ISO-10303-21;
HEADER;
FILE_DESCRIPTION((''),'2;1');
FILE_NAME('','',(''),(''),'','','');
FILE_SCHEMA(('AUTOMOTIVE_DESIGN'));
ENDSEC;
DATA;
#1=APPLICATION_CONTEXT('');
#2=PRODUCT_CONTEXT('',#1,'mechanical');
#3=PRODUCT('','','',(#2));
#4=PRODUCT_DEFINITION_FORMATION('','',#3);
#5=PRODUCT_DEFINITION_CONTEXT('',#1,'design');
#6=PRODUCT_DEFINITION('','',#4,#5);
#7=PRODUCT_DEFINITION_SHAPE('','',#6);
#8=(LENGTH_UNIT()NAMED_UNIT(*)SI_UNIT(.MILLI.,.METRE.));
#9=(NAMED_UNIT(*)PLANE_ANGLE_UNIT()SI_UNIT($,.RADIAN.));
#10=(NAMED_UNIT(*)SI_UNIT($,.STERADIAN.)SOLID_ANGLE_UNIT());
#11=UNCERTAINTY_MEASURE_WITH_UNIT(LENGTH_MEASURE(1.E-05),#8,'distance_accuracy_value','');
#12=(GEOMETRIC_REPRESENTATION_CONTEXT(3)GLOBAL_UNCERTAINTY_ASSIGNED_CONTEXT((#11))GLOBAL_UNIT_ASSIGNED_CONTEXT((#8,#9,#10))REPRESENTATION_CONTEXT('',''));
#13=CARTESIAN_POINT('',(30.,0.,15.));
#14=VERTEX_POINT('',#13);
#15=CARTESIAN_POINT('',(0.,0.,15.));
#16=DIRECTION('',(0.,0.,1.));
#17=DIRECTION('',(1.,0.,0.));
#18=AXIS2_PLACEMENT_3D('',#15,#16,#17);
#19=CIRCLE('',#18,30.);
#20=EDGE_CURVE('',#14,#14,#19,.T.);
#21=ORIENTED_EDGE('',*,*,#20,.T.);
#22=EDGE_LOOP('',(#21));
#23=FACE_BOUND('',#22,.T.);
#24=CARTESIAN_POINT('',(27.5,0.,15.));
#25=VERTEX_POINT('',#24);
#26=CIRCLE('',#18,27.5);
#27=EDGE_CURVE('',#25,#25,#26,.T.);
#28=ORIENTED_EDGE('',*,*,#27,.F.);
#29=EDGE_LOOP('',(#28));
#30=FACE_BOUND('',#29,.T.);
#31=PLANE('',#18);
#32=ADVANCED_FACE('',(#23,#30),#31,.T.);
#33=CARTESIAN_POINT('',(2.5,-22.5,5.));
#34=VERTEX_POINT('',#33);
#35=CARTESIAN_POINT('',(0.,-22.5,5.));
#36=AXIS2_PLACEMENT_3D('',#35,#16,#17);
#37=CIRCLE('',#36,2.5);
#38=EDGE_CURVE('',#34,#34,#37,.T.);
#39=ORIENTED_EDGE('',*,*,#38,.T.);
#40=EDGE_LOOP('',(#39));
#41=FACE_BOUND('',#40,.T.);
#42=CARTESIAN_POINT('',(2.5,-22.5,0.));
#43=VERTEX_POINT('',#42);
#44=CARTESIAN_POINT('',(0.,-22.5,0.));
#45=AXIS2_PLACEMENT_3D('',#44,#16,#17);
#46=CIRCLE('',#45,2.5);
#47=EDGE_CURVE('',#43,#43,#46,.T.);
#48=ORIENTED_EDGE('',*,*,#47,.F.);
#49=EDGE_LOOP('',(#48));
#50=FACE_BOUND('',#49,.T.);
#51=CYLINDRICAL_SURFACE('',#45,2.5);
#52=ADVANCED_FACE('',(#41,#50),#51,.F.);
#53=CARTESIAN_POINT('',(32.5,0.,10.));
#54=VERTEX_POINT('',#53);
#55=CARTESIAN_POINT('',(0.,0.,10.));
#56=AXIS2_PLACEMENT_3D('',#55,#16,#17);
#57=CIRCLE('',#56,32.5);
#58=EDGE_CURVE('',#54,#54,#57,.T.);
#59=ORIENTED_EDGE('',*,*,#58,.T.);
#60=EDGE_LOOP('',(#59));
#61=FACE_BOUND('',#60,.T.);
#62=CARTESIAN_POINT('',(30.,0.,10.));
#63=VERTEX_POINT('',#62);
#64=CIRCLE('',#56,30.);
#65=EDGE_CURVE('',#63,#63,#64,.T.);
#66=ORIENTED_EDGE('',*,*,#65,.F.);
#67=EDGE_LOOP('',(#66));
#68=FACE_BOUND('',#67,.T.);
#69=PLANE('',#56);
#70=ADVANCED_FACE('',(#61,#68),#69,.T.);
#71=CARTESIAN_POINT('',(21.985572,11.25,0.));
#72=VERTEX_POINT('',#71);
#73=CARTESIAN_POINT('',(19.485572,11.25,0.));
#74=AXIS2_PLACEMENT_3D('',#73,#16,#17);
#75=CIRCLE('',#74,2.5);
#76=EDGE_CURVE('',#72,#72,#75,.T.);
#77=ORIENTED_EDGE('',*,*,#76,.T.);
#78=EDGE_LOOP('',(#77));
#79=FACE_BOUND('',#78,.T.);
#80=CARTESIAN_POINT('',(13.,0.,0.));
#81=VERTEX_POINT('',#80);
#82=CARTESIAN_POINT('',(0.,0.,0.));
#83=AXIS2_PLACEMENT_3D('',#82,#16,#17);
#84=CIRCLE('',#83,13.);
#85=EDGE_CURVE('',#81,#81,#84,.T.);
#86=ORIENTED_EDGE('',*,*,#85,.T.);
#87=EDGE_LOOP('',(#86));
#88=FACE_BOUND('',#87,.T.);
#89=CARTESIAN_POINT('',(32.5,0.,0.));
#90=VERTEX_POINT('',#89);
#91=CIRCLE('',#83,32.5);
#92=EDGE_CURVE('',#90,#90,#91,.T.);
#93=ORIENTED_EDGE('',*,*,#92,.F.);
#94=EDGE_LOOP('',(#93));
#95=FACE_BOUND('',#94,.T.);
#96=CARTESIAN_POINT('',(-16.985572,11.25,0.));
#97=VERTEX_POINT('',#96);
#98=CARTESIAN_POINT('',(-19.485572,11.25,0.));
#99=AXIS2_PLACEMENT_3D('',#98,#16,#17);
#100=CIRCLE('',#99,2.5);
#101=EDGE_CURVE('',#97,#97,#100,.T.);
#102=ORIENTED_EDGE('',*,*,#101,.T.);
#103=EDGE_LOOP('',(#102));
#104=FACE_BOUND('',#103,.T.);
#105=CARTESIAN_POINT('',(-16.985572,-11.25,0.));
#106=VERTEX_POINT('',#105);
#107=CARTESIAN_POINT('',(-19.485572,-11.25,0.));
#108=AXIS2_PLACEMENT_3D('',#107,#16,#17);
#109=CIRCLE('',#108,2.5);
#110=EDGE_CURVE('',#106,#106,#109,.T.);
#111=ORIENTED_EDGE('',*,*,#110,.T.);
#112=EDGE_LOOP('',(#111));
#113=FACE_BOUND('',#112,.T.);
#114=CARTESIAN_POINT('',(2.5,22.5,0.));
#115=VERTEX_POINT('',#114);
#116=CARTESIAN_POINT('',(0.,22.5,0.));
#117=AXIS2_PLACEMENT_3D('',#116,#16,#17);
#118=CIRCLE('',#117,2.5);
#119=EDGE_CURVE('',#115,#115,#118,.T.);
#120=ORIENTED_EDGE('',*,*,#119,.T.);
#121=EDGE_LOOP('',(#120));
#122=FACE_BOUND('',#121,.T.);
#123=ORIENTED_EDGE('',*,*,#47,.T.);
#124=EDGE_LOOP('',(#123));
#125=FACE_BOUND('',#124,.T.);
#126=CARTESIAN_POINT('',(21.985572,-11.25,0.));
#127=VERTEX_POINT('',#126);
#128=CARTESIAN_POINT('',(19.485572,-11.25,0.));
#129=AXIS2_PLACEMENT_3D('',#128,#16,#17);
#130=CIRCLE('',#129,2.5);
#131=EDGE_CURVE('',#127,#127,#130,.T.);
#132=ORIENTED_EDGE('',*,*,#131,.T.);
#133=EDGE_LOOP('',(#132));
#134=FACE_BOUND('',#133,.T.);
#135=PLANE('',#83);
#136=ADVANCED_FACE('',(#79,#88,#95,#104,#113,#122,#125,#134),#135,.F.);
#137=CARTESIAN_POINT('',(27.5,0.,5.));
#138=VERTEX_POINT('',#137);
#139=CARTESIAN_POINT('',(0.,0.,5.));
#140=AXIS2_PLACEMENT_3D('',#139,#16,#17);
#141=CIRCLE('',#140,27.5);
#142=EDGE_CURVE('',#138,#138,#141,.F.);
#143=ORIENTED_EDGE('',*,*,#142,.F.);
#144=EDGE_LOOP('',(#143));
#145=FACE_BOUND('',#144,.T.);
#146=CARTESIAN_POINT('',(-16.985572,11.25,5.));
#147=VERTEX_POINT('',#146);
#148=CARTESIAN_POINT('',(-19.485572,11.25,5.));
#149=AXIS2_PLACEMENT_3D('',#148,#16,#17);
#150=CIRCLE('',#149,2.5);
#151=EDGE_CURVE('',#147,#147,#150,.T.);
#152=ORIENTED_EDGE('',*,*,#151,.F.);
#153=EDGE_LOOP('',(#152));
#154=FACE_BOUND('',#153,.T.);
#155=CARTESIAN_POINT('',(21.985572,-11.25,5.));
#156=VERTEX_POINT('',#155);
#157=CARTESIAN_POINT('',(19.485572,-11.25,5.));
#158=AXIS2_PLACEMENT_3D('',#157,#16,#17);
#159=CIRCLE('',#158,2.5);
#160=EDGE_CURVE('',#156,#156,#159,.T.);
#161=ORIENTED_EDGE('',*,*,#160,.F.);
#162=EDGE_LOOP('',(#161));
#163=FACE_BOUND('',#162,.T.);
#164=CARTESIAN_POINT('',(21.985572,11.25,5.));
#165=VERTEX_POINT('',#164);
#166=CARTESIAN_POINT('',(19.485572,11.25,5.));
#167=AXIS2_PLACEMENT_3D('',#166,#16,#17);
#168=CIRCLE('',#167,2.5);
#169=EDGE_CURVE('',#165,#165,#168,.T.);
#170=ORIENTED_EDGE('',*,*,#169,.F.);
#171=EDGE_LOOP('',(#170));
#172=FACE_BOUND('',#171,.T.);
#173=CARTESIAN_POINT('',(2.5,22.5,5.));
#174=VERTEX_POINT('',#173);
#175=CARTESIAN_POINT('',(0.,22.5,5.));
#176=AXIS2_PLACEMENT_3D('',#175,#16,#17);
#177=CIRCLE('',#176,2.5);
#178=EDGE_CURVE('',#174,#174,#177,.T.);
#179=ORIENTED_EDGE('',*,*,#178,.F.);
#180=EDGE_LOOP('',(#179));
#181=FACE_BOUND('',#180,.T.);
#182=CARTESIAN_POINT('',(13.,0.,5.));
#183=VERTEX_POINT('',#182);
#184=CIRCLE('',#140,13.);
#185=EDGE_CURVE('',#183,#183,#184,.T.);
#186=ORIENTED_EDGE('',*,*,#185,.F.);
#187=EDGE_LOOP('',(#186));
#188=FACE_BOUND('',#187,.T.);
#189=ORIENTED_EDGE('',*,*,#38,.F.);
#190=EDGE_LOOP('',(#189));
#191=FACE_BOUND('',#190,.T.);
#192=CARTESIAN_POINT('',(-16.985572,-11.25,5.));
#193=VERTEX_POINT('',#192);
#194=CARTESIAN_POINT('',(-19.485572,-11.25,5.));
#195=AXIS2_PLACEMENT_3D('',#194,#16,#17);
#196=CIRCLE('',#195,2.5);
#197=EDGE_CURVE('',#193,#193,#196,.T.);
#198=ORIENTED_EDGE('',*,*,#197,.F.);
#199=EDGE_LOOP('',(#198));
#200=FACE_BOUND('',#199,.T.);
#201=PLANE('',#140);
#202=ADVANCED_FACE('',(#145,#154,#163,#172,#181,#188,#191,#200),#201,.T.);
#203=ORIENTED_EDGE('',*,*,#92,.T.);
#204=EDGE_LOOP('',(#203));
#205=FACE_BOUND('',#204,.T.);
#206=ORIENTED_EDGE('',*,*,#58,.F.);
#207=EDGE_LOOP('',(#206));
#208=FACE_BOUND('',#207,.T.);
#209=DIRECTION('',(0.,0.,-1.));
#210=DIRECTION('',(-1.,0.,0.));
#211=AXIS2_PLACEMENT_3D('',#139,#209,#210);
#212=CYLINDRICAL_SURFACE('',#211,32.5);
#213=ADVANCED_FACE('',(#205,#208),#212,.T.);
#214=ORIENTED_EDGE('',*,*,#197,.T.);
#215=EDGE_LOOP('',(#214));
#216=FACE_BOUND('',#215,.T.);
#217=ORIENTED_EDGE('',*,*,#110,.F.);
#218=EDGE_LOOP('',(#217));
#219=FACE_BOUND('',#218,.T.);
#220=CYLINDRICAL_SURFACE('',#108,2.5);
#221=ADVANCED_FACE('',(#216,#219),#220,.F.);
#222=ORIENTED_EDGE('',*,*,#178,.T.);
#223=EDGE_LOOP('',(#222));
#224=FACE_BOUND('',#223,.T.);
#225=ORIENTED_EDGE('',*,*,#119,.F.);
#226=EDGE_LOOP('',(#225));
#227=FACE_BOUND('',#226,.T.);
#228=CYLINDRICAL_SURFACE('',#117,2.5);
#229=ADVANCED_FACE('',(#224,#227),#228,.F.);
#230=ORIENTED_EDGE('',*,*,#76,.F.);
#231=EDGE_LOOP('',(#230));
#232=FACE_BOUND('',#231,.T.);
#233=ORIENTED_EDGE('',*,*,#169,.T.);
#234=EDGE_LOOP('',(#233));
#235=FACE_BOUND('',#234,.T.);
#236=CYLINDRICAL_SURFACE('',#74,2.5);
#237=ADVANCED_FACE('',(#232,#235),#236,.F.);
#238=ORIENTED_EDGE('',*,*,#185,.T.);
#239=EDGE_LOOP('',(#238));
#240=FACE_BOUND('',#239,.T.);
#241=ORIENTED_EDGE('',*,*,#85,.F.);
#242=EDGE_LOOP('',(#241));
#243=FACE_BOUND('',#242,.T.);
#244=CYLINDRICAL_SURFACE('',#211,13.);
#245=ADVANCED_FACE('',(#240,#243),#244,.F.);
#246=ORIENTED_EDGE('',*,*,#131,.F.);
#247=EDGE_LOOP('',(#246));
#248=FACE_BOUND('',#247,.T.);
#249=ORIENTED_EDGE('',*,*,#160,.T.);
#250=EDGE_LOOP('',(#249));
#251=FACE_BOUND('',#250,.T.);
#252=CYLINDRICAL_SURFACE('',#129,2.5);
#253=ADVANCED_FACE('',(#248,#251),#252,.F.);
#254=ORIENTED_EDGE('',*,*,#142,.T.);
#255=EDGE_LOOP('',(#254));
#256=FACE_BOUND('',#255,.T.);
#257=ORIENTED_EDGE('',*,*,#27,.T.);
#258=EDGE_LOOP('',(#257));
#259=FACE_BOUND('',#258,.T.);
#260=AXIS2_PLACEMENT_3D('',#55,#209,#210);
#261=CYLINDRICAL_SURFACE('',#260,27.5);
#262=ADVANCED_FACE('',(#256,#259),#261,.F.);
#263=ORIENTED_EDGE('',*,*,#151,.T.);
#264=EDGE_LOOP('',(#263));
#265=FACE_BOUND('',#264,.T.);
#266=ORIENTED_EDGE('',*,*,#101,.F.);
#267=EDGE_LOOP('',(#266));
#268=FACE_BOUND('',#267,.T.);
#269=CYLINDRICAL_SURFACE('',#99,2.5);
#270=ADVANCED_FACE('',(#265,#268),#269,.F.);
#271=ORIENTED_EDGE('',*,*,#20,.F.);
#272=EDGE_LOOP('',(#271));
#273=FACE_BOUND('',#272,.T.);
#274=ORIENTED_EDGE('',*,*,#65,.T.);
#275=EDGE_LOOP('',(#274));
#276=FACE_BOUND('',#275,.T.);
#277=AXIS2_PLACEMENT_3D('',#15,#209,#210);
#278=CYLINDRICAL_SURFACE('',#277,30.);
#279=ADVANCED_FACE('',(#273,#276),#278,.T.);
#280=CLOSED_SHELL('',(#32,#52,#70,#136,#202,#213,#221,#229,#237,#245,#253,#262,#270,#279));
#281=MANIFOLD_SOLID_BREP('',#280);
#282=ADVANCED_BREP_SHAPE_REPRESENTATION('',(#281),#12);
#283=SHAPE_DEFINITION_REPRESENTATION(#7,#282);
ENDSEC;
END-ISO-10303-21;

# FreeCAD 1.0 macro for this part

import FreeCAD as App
import Part
import Sketcher

V = App.Vector

doc = App.newDocument("Part")
body = doc.addObject("PartDesign::Body", "Body")

# Sketch on XY plane
sketch1 = body.newObject("Sketcher::SketchObject", "Sketch")
sketch1.AttachmentSupport = (doc.getObject("XY_Plane"), [""])
sketch1.MapMode = "FlatFace"
sketch1.addGeometry(Part.Circle(V(0, 0, 0), V(0, 0, 1), 32), False)
sketch1.addGeometry(Part.Circle(V(0, 0, 0), V(0, 0, 1), 13), False)
sketch1.addConstraint(Sketcher.Constraint("Coincident", 0, 3, -1, 1))
sketch1.addConstraint(Sketcher.Constraint("Coincident", 1, 3, -1, 1))
sketch1.addConstraint(Sketcher.Constraint("Diameter", 0, 65.0))
sketch1.addConstraint(Sketcher.Constraint("Diameter", 1, 26.0))
pad1 = body.newObject("PartDesign::Pad", "Pad")
pad1.Profile = sketch1
pad1.Length = 5

# Sketch on XY plane
sketch2 = body.newObject("Sketcher::SketchObject", "Sketch001")
sketch2.AttachmentSupport = (doc.getObject("XY_Plane"), [""])
sketch2.MapMode = "FlatFace"
sketch2.AttachmentOffset = App.Placement(V(0, 0, 5), App.Rotation())
sketch2.addGeometry(Part.Circle(V(0, 0, 0), V(0, 0, 1), 32), False)
sketch2.addGeometry(Part.Circle(V(0, 0, 0), V(0, 0, 1), 28), False)
sketch2.addConstraint(Sketcher.Constraint("Coincident", 0, 3, -1, 1))
sketch2.addConstraint(Sketcher.Constraint("Coincident", 1, 3, -1, 1))
sketch2.addConstraint(Sketcher.Constraint("Diameter", 0, 65.0))
sketch2.addConstraint(Sketcher.Constraint("Diameter", 1, 55.0))
pad2 = body.newObject("PartDesign::Pad", "Pad001")
pad2.Profile = sketch2
pad2.Length = 5

# Sketch on XY plane
sketch3 = body.newObject("Sketcher::SketchObject", "Sketch002")
sketch3.AttachmentSupport = (doc.getObject("XY_Plane"), [""])
sketch3.MapMode = "FlatFace"
sketch3.AttachmentOffset = App.Placement(V(0, 0, 5), App.Rotation())
sketch3.addGeometry(Part.Circle(V(0, 22.5, 0), V(0, 0, 1), 2.5), False)
sketch3.addGeometry(Part.Circle(V(19.5, 11.2, 0), V(0, 0, 1), 2.5), False)
sketch3.addGeometry(Part.Circle(V(19.5, -11.2, 0), V(0, 0, 1), 2.5), False)
sketch3.addGeometry(Part.Circle(V(0, -22.5, 0), V(0, 0, 1), 2.5), False)
sketch3.addGeometry(Part.Circle(V(-19.5, -11.2, 0), V(0, 0, 1), 2.5), False)
sketch3.addGeometry(Part.Circle(V(-19.5, 11.2, 0), V(0, 0, 1), 2.5), False)
sketch3.addConstraint(Sketcher.Constraint("Equal", 0, 1))
sketch3.addConstraint(Sketcher.Constraint("Equal", 1, 2))
sketch3.addConstraint(Sketcher.Constraint("Equal", 2, 3))
sketch3.addConstraint(Sketcher.Constraint("Equal", 3, 4))
sketch3.addConstraint(Sketcher.Constraint("Equal", 4, 5))
sketch3.addConstraint(Sketcher.Constraint("Symmetric", 0, 3, 3, 3, -1, 1))
sketch3.addConstraint(Sketcher.Constraint("Symmetric", 1, 3, 4, 3, -1, 1))
sketch3.addConstraint(Sketcher.Constraint("Symmetric", 2, 3, 5, 3, -1, 1))
sketch3.addConstraint(Sketcher.Constraint("Symmetric", 2, 3, 4, 3, -2))
sketch3.addConstraint(Sketcher.Constraint("PointOnObject", 0, 3, -2))
sketch3.addConstraint(Sketcher.Constraint("Diameter", 0, 5.0))
sketch3.addConstraint(Sketcher.Constraint("DistanceY", 3, 3, 0, 3, 45.0))
sketch3.addConstraint(Sketcher.Constraint("DistanceY", 2, 3, 1, 3, 22.5))
sketch3.addConstraint(Sketcher.Constraint("DistanceX", -1, 1, 1, 3, 19.485572))
pocket1 = body.newObject("PartDesign::Pocket", "Pocket")
pocket1.Profile = sketch3
pocket1.Type = "ThroughAll"

# Sketch on XY plane
sketch4 = body.newObject("Sketcher::SketchObject", "Sketch003")
sketch4.AttachmentSupport = (doc.getObject("XY_Plane"), [""])
sketch4.MapMode = "FlatFace"
sketch4.AttachmentOffset = App.Placement(V(0, 0, 10), App.Rotation())
sketch4.addGeometry(Part.Circle(V(0, 0, 0), V(0, 0, 1), 30), False)
sketch4.addGeometry(Part.Circle(V(0, 0, 0), V(0, 0, 1), 28), False)
sketch4.addConstraint(Sketcher.Constraint("Coincident", 0, 3, -1, 1))
sketch4.addConstraint(Sketcher.Constraint("Coincident", 1, 3, -1, 1))
sketch4.addConstraint(Sketcher.Constraint("Diameter", 0, 60.0))
sketch4.addConstraint(Sketcher.Constraint("Diameter", 1, 55.0))
pad3 = body.newObject("PartDesign::Pad", "Pad002")
pad3.Profile = sketch4
pad3.Length = 5

doc.recompute()
